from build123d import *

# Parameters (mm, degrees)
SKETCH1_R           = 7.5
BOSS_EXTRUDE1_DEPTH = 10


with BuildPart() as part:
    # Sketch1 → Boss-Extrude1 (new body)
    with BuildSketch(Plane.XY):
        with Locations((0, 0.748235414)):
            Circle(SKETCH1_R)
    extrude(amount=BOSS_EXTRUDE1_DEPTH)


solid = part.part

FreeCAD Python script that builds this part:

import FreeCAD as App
import Part
import Sketcher

doc = App.newDocument("Part")
body = doc.addObject("PartDesign::Body", "Body")

# Sketch on XY plane
sketch1 = body.newObject("Sketcher::SketchObject", "Sketch")
sketch1.AttachmentSupport = (doc.getObject("XY_Plane"), [""])
sketch1.MapMode = "FlatFace"
sketch1.addGeometry(Part.Circle(App.Vector(0, 0.748235, 0), App.Vector(0, 0, 1), 7.5), False)
sketch1.addConstraint([
    Sketcher.Constraint("PointOnObject", 0, 3, -2),
    Sketcher.Constraint("Diameter", 0, 15.0),
    Sketcher.Constraint("DistanceY", -1, 1, 0, 3, 0.748235),
])
pad1 = body.newObject("PartDesign::Pad", "Pad")
pad1.Profile = sketch1
pad1.Length = 10

doc.recompute()
